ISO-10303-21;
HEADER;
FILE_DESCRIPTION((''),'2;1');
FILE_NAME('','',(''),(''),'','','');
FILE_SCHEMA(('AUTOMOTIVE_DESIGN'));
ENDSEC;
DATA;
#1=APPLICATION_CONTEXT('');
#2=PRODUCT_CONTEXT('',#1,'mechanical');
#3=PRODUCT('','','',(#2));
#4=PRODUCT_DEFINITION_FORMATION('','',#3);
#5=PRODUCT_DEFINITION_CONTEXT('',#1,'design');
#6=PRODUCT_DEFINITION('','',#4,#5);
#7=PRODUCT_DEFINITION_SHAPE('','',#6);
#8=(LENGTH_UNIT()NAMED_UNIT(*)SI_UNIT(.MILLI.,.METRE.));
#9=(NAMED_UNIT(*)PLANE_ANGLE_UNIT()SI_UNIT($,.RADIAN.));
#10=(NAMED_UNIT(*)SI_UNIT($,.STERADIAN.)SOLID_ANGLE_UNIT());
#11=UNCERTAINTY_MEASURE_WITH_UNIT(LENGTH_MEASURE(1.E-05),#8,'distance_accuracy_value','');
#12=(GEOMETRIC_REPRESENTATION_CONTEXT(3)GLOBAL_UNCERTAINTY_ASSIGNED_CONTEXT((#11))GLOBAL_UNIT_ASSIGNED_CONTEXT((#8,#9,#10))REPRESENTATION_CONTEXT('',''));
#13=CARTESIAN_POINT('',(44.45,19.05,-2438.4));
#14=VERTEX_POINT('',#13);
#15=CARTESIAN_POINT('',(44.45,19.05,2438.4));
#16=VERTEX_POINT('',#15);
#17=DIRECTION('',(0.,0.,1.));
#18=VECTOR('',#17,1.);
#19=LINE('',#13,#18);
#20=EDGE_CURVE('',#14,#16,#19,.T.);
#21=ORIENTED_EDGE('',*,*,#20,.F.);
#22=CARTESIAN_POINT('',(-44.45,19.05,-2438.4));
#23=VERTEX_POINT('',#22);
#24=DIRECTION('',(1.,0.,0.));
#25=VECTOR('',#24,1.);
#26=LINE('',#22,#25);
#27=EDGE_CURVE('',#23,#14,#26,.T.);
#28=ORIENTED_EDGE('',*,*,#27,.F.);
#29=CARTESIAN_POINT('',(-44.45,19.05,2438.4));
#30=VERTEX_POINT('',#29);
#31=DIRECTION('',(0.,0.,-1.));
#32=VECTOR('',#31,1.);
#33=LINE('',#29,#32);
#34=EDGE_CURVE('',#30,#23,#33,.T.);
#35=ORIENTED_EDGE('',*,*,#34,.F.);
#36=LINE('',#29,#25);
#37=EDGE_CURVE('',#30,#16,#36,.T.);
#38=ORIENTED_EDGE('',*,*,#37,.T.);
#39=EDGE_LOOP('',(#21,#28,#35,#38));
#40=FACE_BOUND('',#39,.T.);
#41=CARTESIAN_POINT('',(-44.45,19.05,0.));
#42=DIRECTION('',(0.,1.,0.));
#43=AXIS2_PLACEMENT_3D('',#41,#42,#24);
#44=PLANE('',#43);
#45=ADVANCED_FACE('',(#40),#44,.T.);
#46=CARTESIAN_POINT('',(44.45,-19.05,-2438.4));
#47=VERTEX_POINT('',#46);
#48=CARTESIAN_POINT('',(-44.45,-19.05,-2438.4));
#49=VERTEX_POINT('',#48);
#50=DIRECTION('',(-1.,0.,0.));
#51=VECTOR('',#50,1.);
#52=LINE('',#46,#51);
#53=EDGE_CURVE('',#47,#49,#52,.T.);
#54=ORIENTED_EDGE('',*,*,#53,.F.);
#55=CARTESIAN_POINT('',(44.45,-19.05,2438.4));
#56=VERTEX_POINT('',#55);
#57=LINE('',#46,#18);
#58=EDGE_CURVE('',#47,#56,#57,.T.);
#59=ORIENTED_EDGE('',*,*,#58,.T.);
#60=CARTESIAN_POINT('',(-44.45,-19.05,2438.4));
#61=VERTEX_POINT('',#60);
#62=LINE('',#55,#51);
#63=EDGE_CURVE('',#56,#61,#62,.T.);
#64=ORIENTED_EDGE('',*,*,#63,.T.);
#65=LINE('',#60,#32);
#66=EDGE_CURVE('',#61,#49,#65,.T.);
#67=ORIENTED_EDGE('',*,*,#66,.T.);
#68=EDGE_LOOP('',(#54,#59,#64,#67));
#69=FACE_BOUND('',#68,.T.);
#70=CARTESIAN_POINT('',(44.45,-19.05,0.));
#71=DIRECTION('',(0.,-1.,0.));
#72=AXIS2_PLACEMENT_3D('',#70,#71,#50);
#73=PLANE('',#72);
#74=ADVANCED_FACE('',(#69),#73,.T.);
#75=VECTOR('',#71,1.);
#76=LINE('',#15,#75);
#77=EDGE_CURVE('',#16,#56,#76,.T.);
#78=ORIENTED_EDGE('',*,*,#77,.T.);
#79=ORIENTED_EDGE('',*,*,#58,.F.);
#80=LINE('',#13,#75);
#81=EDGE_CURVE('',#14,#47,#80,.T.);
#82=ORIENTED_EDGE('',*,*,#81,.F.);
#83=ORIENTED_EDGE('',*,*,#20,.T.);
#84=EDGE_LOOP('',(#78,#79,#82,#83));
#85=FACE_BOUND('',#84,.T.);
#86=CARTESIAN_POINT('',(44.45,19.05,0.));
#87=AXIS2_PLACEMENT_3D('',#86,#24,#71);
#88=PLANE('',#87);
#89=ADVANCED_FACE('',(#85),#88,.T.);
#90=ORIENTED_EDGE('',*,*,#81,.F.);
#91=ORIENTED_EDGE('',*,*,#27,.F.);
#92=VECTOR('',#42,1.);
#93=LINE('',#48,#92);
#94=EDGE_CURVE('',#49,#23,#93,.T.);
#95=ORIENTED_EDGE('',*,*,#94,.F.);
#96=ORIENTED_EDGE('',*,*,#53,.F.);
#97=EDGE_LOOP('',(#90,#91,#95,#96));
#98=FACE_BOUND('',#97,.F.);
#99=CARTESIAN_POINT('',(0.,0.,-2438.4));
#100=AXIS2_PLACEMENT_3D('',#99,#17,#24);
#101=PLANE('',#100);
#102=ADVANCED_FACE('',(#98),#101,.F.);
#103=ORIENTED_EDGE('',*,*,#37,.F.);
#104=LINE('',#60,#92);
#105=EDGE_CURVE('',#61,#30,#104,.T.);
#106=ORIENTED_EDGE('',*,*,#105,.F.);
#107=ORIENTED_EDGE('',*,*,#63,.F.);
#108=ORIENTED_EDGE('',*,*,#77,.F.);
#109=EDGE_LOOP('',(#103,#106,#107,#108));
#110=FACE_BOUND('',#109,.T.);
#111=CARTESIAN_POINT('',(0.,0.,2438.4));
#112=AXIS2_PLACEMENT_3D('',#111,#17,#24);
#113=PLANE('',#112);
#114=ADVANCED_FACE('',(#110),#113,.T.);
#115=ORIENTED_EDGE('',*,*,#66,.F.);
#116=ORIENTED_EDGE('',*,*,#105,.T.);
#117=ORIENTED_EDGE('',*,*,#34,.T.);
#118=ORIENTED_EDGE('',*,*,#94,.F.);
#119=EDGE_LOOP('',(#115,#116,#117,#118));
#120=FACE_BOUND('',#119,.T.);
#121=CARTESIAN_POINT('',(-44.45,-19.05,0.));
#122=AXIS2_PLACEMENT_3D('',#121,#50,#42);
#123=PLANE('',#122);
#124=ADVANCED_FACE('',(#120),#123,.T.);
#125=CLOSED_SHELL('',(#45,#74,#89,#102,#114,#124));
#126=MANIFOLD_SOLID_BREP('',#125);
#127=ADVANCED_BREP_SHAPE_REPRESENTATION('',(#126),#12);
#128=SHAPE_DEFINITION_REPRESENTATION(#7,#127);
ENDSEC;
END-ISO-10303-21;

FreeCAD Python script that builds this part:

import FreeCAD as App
import Part
import Sketcher
from FreeCAD import Vector
Q = App.Units.Quantity

doc = App.newDocument("Part")
body = doc.addObject("PartDesign::Body", "Body")

# Sketch on XY plane
sketch1 = doc.addObject("Sketcher::SketchObject", "Sketch")
body.addObject(sketch1)
sketch1.AttachmentSupport = (doc.XY_Plane, [""])
sketch1.MapMode = "FlatFace"
sketch1.addGeometry([
    Part.LineSegment(Vector(-44.45, -19.05, 0), Vector(44.45, -19.05, 0)),
    Part.LineSegment(Vector(44.45, -19.05, 0), Vector(44.45, 19.05, 0)),
    Part.LineSegment(Vector(44.45, 19.05, 0), Vector(-44.45, 19.05, 0)),
    Part.LineSegment(Vector(-44.45, 19.05, 0), Vector(-44.45, -19.05, 0)),
], False)
sketch1.addConstraint([
    Sketcher.Constraint("Coincident", 0, 2, 1, 1),
    Sketcher.Constraint("Coincident", 1, 2, 2, 1),
    Sketcher.Constraint("Coincident", 2, 2, 3, 1),
    Sketcher.Constraint("Coincident", 3, 2, 0, 1),
    Sketcher.Constraint("Horizontal", 0),
    Sketcher.Constraint("Vertical", 1),
    Sketcher.Constraint("Horizontal", 2),
    Sketcher.Constraint("Vertical", 3),
    Sketcher.Constraint("Symmetric", 0, 2, 2, 2, -1, 1),
    Sketcher.Constraint("DistanceX", 0, 1, 0, 2, Q("3.5 in")),
    Sketcher.Constraint("DistanceY", 1, 1, 1, 2, Q("1.5 in")),
])
pad1 = doc.addObject("PartDesign::Pad", "Pad")
body.addObject(pad1)
pad1.Profile = sketch1
pad1.Length = Q("192 in")
pad1.Midplane = True

doc.recompute()
